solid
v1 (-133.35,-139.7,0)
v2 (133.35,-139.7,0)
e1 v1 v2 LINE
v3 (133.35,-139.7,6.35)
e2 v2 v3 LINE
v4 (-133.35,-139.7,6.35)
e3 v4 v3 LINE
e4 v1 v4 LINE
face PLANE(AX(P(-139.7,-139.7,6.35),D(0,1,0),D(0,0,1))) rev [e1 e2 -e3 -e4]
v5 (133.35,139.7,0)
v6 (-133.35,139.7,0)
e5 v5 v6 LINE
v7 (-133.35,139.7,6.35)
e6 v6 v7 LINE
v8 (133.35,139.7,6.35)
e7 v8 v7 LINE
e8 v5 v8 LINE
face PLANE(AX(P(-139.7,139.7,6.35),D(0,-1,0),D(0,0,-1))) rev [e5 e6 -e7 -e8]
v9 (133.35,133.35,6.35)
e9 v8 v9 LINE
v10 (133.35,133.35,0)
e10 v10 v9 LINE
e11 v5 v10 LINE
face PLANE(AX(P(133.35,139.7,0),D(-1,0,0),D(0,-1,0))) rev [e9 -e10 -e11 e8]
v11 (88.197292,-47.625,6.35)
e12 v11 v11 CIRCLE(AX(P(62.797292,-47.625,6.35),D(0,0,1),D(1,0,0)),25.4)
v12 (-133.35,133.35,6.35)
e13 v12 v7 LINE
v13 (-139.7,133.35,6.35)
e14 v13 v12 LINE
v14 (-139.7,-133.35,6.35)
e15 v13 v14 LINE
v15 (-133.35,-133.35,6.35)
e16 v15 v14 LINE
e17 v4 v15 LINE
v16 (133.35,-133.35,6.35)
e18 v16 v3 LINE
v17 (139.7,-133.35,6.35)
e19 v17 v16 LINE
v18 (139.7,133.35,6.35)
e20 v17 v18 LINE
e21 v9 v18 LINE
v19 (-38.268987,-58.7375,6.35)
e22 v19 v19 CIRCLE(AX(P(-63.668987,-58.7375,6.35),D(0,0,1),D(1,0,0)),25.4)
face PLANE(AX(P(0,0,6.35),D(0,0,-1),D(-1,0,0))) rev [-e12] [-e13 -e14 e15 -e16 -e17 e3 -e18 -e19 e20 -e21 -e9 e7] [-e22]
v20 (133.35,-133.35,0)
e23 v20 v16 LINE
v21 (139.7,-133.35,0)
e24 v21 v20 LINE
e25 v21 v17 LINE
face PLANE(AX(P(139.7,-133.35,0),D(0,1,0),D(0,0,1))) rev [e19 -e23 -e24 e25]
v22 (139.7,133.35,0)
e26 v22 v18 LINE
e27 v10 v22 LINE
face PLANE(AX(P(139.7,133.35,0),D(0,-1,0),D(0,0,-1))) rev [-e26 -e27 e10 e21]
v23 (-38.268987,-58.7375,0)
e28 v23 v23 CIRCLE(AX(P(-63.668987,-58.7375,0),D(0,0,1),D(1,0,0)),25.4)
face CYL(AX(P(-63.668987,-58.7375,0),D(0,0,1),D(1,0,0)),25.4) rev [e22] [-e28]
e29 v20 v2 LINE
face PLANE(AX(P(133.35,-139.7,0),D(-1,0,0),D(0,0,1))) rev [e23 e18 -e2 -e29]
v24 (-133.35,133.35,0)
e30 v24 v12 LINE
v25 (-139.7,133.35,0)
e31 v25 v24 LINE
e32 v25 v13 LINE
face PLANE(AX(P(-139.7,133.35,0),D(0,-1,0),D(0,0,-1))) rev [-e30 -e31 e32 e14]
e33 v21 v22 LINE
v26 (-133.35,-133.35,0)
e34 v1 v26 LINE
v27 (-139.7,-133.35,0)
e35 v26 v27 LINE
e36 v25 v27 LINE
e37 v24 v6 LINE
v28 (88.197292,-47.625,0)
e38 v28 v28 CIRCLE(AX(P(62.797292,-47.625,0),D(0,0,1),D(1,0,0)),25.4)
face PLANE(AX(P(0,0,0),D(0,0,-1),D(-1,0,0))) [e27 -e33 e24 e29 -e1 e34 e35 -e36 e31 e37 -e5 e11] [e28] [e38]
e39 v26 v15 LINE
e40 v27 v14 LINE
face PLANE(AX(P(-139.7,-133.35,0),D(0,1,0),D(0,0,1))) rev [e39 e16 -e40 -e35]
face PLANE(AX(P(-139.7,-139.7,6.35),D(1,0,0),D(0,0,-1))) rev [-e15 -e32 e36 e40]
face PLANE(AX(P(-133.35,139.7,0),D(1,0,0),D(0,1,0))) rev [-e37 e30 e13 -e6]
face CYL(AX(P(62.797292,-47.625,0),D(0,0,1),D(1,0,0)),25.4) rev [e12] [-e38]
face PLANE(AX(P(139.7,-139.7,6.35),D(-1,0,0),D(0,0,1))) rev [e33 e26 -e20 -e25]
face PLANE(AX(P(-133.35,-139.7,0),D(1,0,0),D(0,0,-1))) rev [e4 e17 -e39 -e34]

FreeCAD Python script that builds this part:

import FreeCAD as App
import Part
import Sketcher
Q = App.Units.Quantity


def add_polygon(sketch, points):
    """Adds a closed chain of lines whose ends are joined by coincident constraints."""
    first, n = sketch.GeometryCount, len(points)
    for a, b in zip(points, points[1:] + points[:1]):
        sketch.addGeometry(Part.LineSegment(App.Vector(*a, 0), App.Vector(*b, 0)), False)
    for i in range(n):
        sketch.addConstraint(Sketcher.Constraint("Coincident", first + i, 2, first + (i + 1) % n, 1))

doc = App.newDocument("Part")
body = doc.addObject("PartDesign::Body", "Body")

sketch1 = doc.addObject("Sketcher::SketchObject", "Sketch")
body.addObject(sketch1)
sketch1.AttachmentSupport = (doc.XY_Plane, [""])
sketch1.MapMode = "FlatFace"
add_polygon(sketch1, [(-140, 140), (-140, -140), (140, -140), (140, 140)])
sketch1.addConstraint([
    Sketcher.Constraint("Vertical", 0),
    Sketcher.Constraint("Horizontal", 1),
    Sketcher.Constraint("Vertical", 2),
    Sketcher.Constraint("Horizontal", 3),
    Sketcher.Constraint("Symmetric", 0, 2, 2, 2, -1, 1),
    Sketcher.Constraint("Equal", 3, 0),
    Sketcher.Constraint("DistanceX", 1, 1, 1, 2, Q("11 in")),
])
pad1 = doc.addObject("PartDesign::Pad", "Pad")
body.addObject(pad1)
pad1.Profile = sketch1
pad1.Length = Q("0.25 in")

sketch2 = doc.addObject("Sketcher::SketchObject", "Sketch001")
body.addObject(sketch2)
sketch2.AttachmentSupport = (doc.XY_Plane, [""])
sketch2.MapMode = "FlatFace"
sketch2.AttachmentOffset = App.Placement(App.Vector(0, 0, 0.25 * 25.4), App.Rotation())
sketch2.addGeometry([
    Part.Circle(App.Vector(-64, -59, 0), App.Vector(0, 0, 1), 25),
    Part.Circle(App.Vector(63, -48, 0), App.Vector(0, 0, 1), 25),
], False)
sketch2.addConstraint([
    Sketcher.Constraint("Equal", 0, 1),
    Sketcher.Constraint("Diameter", 0, Q("2 in")),
    Sketcher.Constraint("DistanceY", 0, 3, -1, 1, Q("2.3125 in")),
    Sketcher.Constraint("DistanceY", 1, 3, -1, 1, Q("1.875 in")),
    Sketcher.Constraint("DistanceX", -1, 1, 1, 3, Q("62.797292 mm")),
    Sketcher.Constraint("DistanceX", 0, 3, 1, 3, Q("126.466278 mm")),
])
pocket1 = doc.addObject("PartDesign::Pocket", "Pocket")
body.addObject(pocket1)
pocket1.Profile = sketch2
pocket1.Type = "ThroughAll"

sketch3 = doc.addObject("Sketcher::SketchObject", "Sketch002")
body.addObject(sketch3)
sketch3.AttachmentSupport = (doc.XY_Plane, [""])
sketch3.MapMode = "FlatFace"
sketch3.AttachmentOffset = App.Placement(App.Vector(0, 0, 0.25 * 25.4), App.Rotation())
add_polygon(sketch3, [(-140, 140), (-140, 133), (-133, 133), (-133, 140)])
add_polygon(sketch3, [(133, 140), (133, 133), (140, 133), (140, 140)])
add_polygon(sketch3, [(133, -133), (133, -140), (140, -140), (140, -133)])
add_polygon(sketch3, [(-140, -133), (-140, -140), (-133, -140), (-133, -133)])
sketch3.addConstraint([
    Sketcher.Constraint("Vertical", 0),
    Sketcher.Constraint("Horizontal", 1),
    Sketcher.Constraint("Vertical", 2),
    Sketcher.Constraint("Horizontal", 3),
    Sketcher.Constraint("Vertical", 4),
    Sketcher.Constraint("Horizontal", 5),
    Sketcher.Constraint("Vertical", 6),
    Sketcher.Constraint("Horizontal", 7),
    Sketcher.Constraint("Vertical", 8),
    Sketcher.Constraint("Horizontal", 9),
    Sketcher.Constraint("Vertical", 10),
    Sketcher.Constraint("Horizontal", 11),
    Sketcher.Constraint("Vertical", 12),
    Sketcher.Constraint("Horizontal", 13),
    Sketcher.Constraint("Vertical", 14),
    Sketcher.Constraint("Horizontal", 15),
    Sketcher.Constraint("Symmetric", 2, 2, 8, 2, -1, 1),
    Sketcher.Constraint("Symmetric", 0, 2, 10, 2, -1, 1),
    Sketcher.Constraint("Symmetric", 6, 2, 12, 2, -1, 1),
    Sketcher.Constraint("Symmetric", 4, 2, 14, 2, -1, 1),
    Sketcher.Constraint("Symmetric", 1, 2, 4, 2, -2),
    Sketcher.Constraint("Symmetric", 3, 2, 6, 2, -2),
    Sketcher.Constraint("Equal", 15, 0),
    Sketcher.Constraint("DistanceX", 0, 2, 5, 2, Q("11 in")),
    Sketcher.Constraint("DistanceY", 8, 2, 7, 2, Q("11 in")),
    Sketcher.Constraint("DistanceX", 1, 1, 1, 2, Q("0.25 in")),
])
pocket2 = doc.addObject("PartDesign::Pocket", "Pocket001")
body.addObject(pocket2)
pocket2.Profile = sketch3
pocket2.Type = "ThroughAll"

doc.recompute()
